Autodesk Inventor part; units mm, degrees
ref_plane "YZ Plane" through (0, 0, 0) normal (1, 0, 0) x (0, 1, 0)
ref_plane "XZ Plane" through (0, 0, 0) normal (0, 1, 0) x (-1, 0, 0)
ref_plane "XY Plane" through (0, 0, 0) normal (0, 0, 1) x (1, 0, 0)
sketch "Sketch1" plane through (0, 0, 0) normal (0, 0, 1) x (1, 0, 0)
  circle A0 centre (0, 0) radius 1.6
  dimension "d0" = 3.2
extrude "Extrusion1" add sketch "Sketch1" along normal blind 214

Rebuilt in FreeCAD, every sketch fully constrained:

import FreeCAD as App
import Part
import Sketcher
Q = App.Units.Quantity

doc = App.newDocument("Part")
body = doc.addObject("PartDesign::Body", "Body")

# Sketch on XY plane
sketch1 = doc.addObject("Sketcher::SketchObject", "Sketch")
body.addObject(sketch1)
sketch1.AttachmentSupport = (doc.XY_Plane, [""])
sketch1.MapMode = "FlatFace"
sketch1.addGeometry(Part.Circle(App.Vector(0, 0, 0), App.Vector(0, 0, 1), 1.6), False)
sketch1.addConstraint(Sketcher.Constraint("Coincident", 0, 3, -1, 1))
sketch1.addConstraint(Sketcher.Constraint("Diameter", 0, Q("3.2 mm")))
pad1 = doc.addObject("PartDesign::Pad", "Pad")
body.addObject(pad1)
pad1.Profile = sketch1
pad1.Length = 214

doc.recompute()
